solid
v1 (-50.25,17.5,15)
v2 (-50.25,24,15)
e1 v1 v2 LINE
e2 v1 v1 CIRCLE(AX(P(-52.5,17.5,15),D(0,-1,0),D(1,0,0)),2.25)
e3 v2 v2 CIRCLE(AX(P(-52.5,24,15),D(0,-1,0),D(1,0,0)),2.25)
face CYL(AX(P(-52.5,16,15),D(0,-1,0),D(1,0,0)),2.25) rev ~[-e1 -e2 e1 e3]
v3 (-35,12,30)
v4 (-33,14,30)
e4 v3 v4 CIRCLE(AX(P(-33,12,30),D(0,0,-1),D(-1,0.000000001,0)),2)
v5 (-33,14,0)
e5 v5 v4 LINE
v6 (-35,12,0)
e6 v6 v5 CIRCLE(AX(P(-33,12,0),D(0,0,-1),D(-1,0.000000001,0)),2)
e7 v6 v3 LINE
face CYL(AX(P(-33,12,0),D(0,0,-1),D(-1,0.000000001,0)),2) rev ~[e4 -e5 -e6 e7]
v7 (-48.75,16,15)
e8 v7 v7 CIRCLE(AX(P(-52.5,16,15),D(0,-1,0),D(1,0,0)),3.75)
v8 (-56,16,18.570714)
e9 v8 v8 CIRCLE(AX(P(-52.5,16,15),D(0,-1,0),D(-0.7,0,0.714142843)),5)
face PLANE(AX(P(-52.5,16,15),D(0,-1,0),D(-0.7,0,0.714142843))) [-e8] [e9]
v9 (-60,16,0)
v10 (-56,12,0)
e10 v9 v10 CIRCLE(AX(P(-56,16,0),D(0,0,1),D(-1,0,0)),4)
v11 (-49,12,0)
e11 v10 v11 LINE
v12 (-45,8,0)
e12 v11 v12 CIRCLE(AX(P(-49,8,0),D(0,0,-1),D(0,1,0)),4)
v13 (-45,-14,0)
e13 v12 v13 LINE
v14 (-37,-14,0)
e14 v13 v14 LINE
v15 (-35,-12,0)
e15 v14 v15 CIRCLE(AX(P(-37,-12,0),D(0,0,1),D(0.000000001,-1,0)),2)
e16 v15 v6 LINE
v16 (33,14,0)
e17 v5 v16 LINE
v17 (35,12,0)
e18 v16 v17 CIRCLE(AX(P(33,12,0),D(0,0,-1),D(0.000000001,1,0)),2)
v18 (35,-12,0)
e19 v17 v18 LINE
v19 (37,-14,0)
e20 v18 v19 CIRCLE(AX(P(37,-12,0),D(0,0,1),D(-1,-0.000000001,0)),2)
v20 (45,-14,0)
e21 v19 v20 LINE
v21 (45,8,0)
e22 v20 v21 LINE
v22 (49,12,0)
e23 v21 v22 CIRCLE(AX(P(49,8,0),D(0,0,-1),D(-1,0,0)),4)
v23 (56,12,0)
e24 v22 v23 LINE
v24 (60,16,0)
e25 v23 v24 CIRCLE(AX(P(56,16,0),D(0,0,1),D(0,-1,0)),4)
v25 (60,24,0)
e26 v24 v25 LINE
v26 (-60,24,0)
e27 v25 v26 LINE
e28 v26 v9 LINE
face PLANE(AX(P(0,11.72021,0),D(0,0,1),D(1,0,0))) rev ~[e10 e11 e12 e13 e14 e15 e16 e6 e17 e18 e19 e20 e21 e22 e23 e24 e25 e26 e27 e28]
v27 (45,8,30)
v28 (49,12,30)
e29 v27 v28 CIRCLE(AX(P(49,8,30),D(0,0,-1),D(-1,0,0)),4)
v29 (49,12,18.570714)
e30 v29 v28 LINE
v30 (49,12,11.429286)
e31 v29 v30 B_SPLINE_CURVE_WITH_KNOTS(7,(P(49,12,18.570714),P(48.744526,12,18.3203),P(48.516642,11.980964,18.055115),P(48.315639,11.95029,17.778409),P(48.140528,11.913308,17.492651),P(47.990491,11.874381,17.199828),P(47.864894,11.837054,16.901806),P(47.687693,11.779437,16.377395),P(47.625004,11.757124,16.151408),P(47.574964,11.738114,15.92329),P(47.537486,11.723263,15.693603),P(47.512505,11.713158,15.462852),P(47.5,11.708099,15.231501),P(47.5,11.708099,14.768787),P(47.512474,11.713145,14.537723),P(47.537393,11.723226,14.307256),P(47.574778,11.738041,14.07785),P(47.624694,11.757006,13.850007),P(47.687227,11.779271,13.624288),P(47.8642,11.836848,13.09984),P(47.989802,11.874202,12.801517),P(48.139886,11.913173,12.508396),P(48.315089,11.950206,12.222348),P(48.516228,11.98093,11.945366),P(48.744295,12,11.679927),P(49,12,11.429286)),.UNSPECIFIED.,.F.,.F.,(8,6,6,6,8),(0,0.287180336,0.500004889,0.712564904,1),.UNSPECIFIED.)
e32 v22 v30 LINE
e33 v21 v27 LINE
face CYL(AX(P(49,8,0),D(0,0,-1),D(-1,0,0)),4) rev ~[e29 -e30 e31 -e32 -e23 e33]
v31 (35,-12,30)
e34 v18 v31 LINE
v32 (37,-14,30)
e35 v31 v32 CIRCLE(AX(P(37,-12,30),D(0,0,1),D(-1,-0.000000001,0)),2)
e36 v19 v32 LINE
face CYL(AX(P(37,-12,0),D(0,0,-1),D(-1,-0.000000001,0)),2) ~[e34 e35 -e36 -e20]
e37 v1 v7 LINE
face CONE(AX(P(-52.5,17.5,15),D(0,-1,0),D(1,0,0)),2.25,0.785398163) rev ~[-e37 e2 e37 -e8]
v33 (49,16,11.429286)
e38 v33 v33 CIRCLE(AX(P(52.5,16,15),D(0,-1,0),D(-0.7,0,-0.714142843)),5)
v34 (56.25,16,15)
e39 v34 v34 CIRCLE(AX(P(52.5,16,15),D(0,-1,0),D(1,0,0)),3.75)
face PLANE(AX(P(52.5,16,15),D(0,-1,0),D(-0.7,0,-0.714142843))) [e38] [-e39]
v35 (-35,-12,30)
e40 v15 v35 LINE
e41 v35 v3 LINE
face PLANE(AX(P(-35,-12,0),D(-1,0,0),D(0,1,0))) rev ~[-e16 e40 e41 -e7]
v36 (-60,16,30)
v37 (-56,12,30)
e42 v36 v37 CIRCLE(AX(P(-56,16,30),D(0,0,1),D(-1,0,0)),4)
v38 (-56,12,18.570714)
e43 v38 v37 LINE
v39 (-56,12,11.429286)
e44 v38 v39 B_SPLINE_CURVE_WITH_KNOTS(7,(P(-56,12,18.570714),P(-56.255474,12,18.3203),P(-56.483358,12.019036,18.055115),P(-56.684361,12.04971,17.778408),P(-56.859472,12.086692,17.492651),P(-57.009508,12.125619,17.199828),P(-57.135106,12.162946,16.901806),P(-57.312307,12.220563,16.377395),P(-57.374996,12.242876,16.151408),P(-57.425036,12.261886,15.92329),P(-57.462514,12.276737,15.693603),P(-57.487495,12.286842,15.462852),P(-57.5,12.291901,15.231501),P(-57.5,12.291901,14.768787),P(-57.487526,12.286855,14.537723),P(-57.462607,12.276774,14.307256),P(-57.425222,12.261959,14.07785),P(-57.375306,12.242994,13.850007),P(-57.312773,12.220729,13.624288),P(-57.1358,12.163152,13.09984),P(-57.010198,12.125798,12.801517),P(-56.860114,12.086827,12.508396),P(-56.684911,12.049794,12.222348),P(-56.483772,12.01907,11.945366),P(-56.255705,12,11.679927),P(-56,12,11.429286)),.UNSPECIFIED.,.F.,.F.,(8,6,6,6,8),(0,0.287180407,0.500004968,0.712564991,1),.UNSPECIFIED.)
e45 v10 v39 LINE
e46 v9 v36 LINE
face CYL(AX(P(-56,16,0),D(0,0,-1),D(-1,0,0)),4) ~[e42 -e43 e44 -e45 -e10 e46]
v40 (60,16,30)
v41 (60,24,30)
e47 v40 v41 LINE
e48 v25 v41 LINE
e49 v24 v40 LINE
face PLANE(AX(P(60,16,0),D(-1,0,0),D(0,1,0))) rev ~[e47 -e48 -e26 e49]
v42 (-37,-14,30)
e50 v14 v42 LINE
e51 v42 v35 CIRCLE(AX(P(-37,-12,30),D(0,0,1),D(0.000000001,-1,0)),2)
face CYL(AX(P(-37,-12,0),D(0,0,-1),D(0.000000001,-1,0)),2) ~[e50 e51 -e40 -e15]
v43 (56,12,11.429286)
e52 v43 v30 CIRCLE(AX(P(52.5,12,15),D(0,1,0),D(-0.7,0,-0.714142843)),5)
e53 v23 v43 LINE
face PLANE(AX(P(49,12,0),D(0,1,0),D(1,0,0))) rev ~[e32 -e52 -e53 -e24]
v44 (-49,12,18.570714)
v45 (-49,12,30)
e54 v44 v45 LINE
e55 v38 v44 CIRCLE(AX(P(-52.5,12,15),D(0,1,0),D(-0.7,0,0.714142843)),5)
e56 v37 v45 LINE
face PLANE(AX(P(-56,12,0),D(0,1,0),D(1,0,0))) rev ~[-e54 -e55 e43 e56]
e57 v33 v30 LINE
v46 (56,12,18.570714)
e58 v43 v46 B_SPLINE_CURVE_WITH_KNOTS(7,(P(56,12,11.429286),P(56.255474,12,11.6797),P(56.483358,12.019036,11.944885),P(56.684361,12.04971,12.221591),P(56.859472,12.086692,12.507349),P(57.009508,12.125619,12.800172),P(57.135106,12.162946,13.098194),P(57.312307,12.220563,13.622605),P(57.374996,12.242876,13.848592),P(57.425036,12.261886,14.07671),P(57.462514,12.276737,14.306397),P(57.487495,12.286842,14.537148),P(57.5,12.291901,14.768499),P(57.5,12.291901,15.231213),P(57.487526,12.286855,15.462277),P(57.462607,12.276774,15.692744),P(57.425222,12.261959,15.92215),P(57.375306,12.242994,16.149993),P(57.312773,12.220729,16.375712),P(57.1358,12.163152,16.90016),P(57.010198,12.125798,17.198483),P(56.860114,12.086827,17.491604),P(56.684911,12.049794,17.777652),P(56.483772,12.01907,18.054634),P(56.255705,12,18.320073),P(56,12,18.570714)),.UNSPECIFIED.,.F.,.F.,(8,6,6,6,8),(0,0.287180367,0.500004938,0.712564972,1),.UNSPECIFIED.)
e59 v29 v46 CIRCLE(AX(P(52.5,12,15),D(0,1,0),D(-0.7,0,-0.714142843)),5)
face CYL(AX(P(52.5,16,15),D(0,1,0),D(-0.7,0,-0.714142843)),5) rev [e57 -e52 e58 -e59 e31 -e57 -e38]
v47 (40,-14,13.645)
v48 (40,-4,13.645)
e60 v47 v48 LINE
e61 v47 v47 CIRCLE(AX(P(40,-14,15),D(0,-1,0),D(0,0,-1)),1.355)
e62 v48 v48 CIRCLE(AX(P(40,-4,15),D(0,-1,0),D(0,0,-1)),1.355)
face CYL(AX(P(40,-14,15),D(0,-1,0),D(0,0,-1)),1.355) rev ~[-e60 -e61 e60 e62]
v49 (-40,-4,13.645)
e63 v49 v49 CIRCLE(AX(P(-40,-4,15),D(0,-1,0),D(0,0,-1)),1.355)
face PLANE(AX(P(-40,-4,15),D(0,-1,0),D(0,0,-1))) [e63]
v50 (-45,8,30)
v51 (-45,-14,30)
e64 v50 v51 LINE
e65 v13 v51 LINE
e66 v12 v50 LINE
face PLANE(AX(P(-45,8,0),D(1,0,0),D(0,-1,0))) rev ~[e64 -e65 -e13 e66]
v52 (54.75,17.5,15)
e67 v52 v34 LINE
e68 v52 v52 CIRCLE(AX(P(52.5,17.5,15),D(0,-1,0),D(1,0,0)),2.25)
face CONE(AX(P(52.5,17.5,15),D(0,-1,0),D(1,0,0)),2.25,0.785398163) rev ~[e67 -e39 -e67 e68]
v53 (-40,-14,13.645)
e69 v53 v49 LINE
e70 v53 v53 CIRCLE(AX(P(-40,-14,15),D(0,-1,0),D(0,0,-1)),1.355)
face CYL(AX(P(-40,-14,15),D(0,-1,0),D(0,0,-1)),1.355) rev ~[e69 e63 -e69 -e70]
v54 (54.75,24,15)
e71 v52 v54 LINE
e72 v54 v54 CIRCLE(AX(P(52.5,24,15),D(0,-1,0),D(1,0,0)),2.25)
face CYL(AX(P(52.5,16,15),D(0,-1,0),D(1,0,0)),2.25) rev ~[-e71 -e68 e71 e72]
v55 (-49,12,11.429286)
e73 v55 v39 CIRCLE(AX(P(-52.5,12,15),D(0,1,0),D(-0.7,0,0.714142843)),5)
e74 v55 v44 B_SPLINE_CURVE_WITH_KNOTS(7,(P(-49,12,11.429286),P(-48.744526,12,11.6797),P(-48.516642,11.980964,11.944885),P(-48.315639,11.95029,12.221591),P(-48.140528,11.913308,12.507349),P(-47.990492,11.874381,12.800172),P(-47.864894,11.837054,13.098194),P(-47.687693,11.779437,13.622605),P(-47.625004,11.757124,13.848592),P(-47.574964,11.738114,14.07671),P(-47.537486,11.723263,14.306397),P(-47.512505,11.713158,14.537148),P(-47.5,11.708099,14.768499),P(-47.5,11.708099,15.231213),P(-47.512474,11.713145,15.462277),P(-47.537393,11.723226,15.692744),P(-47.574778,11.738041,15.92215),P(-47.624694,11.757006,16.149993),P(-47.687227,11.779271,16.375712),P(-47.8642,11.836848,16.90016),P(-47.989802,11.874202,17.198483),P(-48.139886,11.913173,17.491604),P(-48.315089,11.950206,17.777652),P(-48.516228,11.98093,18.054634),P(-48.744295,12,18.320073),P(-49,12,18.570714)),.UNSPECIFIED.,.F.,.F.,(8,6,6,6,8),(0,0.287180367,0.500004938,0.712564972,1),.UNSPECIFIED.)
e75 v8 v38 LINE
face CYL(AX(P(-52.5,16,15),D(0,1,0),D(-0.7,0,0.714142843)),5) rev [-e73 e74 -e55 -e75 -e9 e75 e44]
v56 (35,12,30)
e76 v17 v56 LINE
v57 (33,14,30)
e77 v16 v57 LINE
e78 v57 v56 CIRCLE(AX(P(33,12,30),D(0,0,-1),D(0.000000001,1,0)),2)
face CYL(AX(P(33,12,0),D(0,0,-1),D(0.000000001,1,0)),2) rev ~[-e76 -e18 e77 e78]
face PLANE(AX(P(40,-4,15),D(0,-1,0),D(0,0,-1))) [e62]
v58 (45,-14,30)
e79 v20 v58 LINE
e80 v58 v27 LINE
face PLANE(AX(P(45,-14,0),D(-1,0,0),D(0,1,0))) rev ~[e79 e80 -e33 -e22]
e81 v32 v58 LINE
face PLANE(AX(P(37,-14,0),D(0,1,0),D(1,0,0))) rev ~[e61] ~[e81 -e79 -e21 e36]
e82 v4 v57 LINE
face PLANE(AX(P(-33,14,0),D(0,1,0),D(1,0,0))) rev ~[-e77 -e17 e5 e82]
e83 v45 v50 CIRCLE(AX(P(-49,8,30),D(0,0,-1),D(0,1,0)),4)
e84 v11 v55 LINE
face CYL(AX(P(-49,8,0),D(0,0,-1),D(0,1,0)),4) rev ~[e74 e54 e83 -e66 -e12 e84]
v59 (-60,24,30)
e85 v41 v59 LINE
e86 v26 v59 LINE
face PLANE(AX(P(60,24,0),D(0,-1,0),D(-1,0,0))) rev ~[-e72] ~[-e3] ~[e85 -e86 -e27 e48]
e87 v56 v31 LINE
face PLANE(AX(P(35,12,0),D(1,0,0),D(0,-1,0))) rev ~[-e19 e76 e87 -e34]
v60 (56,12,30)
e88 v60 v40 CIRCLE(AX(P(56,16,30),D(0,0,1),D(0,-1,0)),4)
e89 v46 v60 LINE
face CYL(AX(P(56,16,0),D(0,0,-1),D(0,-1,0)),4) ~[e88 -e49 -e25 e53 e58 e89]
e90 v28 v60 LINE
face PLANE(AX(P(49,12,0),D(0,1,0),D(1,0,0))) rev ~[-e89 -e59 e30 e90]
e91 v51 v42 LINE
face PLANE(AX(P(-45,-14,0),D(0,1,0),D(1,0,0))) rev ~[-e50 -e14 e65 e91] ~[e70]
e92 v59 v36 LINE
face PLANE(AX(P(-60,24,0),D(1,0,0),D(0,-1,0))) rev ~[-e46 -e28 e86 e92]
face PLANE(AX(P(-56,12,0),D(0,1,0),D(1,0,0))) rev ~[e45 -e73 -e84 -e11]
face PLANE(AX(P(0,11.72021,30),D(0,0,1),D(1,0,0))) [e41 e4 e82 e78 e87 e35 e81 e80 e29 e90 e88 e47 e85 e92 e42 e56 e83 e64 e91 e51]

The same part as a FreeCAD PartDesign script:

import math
import FreeCAD as App
import Part
import Sketcher


def edges_at(feature, points):
    """Names of the edges that pass closest to the given points."""
    edges = feature.Shape.Edges
    near = lambda p: min(range(len(edges)), key=lambda i: edges[i].distToShape(Part.Vertex(*p))[0])
    return sorted({f"Edge{near(p) + 1}" for p in points})

doc = App.newDocument("Part")
body = doc.addObject("PartDesign::Body", "Body")

# Sketch on XY plane
sketch1 = body.newObject("Sketcher::SketchObject", "Sketch")
sketch1.AttachmentSupport = (doc.getObject("XY_Plane"), [""])
sketch1.MapMode = "FlatFace"
sketch1.addGeometry(Part.LineSegment(App.Vector(-35, -12, 0), App.Vector(-35, 12, 0)), False)
sketch1.addGeometry(Part.ArcOfCircle(Part.Circle(App.Vector(-33, 12, 0), App.Vector(0, 0, 1), 2), math.radians(90), math.radians(180)), False)
sketch1.addGeometry(Part.LineSegment(App.Vector(-33, 14, 0), App.Vector(33, 14, 0)), False)
sketch1.addGeometry(Part.ArcOfCircle(Part.Circle(App.Vector(33, 12, 0), App.Vector(0, 0, 1), 2), math.radians(0), math.radians(90)), False)
sketch1.addGeometry(Part.LineSegment(App.Vector(35, 12, 0), App.Vector(35, -12, 0)), False)
sketch1.addGeometry(Part.ArcOfCircle(Part.Circle(App.Vector(37, -12, 0), App.Vector(0, 0, 1), 2), math.radians(-180), math.radians(-90)), False)
sketch1.addGeometry(Part.LineSegment(App.Vector(37, -14, 0), App.Vector(45, -14, 0)), False)
sketch1.addGeometry(Part.LineSegment(App.Vector(45, -14, 0), App.Vector(45, 8, 0)), False)
sketch1.addGeometry(Part.ArcOfCircle(Part.Circle(App.Vector(49, 8, 0), App.Vector(0, 0, 1), 4), math.radians(90), math.radians(180)), False)
sketch1.addGeometry(Part.LineSegment(App.Vector(49, 12, 0), App.Vector(56, 12, 0)), False)
sketch1.addGeometry(Part.ArcOfCircle(Part.Circle(App.Vector(56, 16, 0), App.Vector(0, 0, 1), 4), math.radians(-90), math.radians(0)), False)
sketch1.addGeometry(Part.LineSegment(App.Vector(60, 16, 0), App.Vector(60, 24, 0)), False)
sketch1.addGeometry(Part.LineSegment(App.Vector(60, 24, 0), App.Vector(-60, 24, 0)), False)
sketch1.addGeometry(Part.LineSegment(App.Vector(-60, 24, 0), App.Vector(-60, 16, 0)), False)
sketch1.addGeometry(Part.ArcOfCircle(Part.Circle(App.Vector(-56, 16, 0), App.Vector(0, 0, 1), 4), math.radians(180), math.radians(270)), False)
sketch1.addGeometry(Part.LineSegment(App.Vector(-56, 12, 0), App.Vector(-49, 12, 0)), False)
sketch1.addGeometry(Part.ArcOfCircle(Part.Circle(App.Vector(-49, 8, 0), App.Vector(0, 0, 1), 4), math.radians(0), math.radians(90)), False)
sketch1.addGeometry(Part.LineSegment(App.Vector(-45, 8, 0), App.Vector(-45, -14, 0)), False)
sketch1.addGeometry(Part.LineSegment(App.Vector(-45, -14, 0), App.Vector(-37, -14, 0)), False)
sketch1.addGeometry(Part.ArcOfCircle(Part.Circle(App.Vector(-37, -12, 0), App.Vector(0, 0, 1), 2), math.radians(-90), math.radians(0)), False)
sketch1.addConstraint(Sketcher.Constraint("Tangent", 0, 2, 1, 2))
sketch1.addConstraint(Sketcher.Constraint("Tangent", 1, 1, 2, 1))
sketch1.addConstraint(Sketcher.Constraint("Tangent", 2, 2, 3, 2))
sketch1.addConstraint(Sketcher.Constraint("Tangent", 3, 1, 4, 1))
sketch1.addConstraint(Sketcher.Constraint("Tangent", 4, 2, 5, 1))
sketch1.addConstraint(Sketcher.Constraint("Tangent", 5, 2, 6, 1))
sketch1.addConstraint(Sketcher.Constraint("Coincident", 6, 2, 7, 1))
sketch1.addConstraint(Sketcher.Constraint("Tangent", 7, 2, 8, 2))
sketch1.addConstraint(Sketcher.Constraint("Tangent", 8, 1, 9, 1))
sketch1.addConstraint(Sketcher.Constraint("Tangent", 9, 2, 10, 1))
sketch1.addConstraint(Sketcher.Constraint("Tangent", 10, 2, 11, 1))
sketch1.addConstraint(Sketcher.Constraint("Coincident", 11, 2, 12, 1))
sketch1.addConstraint(Sketcher.Constraint("Coincident", 12, 2, 13, 1))
sketch1.addConstraint(Sketcher.Constraint("Tangent", 13, 2, 14, 1))
sketch1.addConstraint(Sketcher.Constraint("Tangent", 14, 2, 15, 1))
sketch1.addConstraint(Sketcher.Constraint("Tangent", 15, 2, 16, 2))
sketch1.addConstraint(Sketcher.Constraint("Tangent", 16, 1, 17, 1))
sketch1.addConstraint(Sketcher.Constraint("Coincident", 17, 2, 18, 1))
sketch1.addConstraint(Sketcher.Constraint("Tangent", 18, 2, 19, 1))
sketch1.addConstraint(Sketcher.Constraint("Tangent", 19, 2, 0, 1))
sketch1.addConstraint(Sketcher.Constraint("Vertical", 0))
sketch1.addConstraint(Sketcher.Constraint("Horizontal", 2))
sketch1.addConstraint(Sketcher.Constraint("Vertical", 4))
sketch1.addConstraint(Sketcher.Constraint("Horizontal", 6))
sketch1.addConstraint(Sketcher.Constraint("Vertical", 7))
sketch1.addConstraint(Sketcher.Constraint("Horizontal", 9))
sketch1.addConstraint(Sketcher.Constraint("Vertical", 11))
sketch1.addConstraint(Sketcher.Constraint("Horizontal", 12))
sketch1.addConstraint(Sketcher.Constraint("Vertical", 13))
sketch1.addConstraint(Sketcher.Constraint("Horizontal", 15))
sketch1.addConstraint(Sketcher.Constraint("Vertical", 17))
sketch1.addConstraint(Sketcher.Constraint("Horizontal", 18))
sketch1.addConstraint(Sketcher.Constraint("Equal", 1, 3))
sketch1.addConstraint(Sketcher.Constraint("Equal", 3, 5))
sketch1.addConstraint(Sketcher.Constraint("Equal", 8, 10))
sketch1.addConstraint(Sketcher.Constraint("Equal", 10, 14))
sketch1.addConstraint(Sketcher.Constraint("Equal", 14, 16))
sketch1.addConstraint(Sketcher.Constraint("Equal", 5, 19))
sketch1.addConstraint(Sketcher.Constraint("Symmetric", 0, 2, 4, 2, -1, 1))
sketch1.addConstraint(Sketcher.Constraint("Symmetric", 10, 3, 14, 3, -2))
sketch1.addConstraint(Sketcher.Constraint("Symmetric", 6, 2, 17, 2, -2))
sketch1.addConstraint(Sketcher.Constraint("Horizontal", 3, 1, 8, 1))
sketch1.addConstraint(Sketcher.Constraint("Equal", 18, 11))
sketch1.addConstraint(Sketcher.Constraint("Radius", 1, 2.0))
sketch1.addConstraint(Sketcher.Constraint("Radius", 8, 4.0))
sketch1.addConstraint(Sketcher.Constraint("DistanceX", 2, 1, 2, 2, 66.0))
sketch1.addConstraint(Sketcher.Constraint("DistanceX", 6, 1, 6, 2, 8.0))
sketch1.addConstraint(Sketcher.Constraint("DistanceX", 9, 1, 9, 2, 7.0))
sketch1.addConstraint(Sketcher.Constraint("DistanceY", 0, 1, 0, 2, 24.0))
pad1 = body.newObject("PartDesign::Pad", "Pad")
pad1.Profile = sketch1
pad1.Length = 30

# Sketch on XZ plane
sketch2 = body.newObject("Sketcher::SketchObject", "Sketch001")
sketch2.AttachmentSupport = (doc.getObject("XZ_Plane"), [""])
sketch2.MapMode = "FlatFace"
sketch2.AttachmentOffset = App.Placement(App.Vector(0, 0, -12), App.Rotation())
sketch2.addGeometry(Part.Circle(App.Vector(-52, 15, 0), App.Vector(0, 0, 1), 5), False)
sketch2.addGeometry(Part.Circle(App.Vector(52, 15, 0), App.Vector(0, 0, 1), 5), False)
sketch2.addConstraint(Sketcher.Constraint("Equal", 0, 1))
sketch2.addConstraint(Sketcher.Constraint("Symmetric", 0, 3, 1, 3, -2))
sketch2.addConstraint(Sketcher.Constraint("Diameter", 0, 10.0))
sketch2.addConstraint(Sketcher.Constraint("DistanceY", -1, 1, 0, 3, 15.0))
sketch2.addConstraint(Sketcher.Constraint("DistanceX", 0, 3, 1, 3, 105.0))
pocket1 = body.newObject("PartDesign::Pocket", "Pocket")
pocket1.Profile = sketch2
pocket1.Type = "TwoLengths"
pocket1.Length = 72.944423
pocket1.Length2 = 4
pocket1.Reversed = True

# Sketch on XZ plane
sketch3 = body.newObject("Sketcher::SketchObject", "Sketch002")
sketch3.AttachmentSupport = (doc.getObject("XZ_Plane"), [""])
sketch3.MapMode = "FlatFace"
sketch3.AttachmentOffset = App.Placement(App.Vector(0, 0, -16), App.Rotation())
sketch3.addGeometry(Part.Circle(App.Vector(-52.5, 15, 0), App.Vector(0, 0, 1), 2.2), False)
sketch3.addGeometry(Part.Circle(App.Vector(52.5, 15, 0), App.Vector(0, 0, 1), 2.2), False)
sketch3.addConstraint(Sketcher.Constraint("Equal", 0, 1))
sketch3.addConstraint(Sketcher.Constraint("Symmetric", 0, 3, 1, 3, -2))
sketch3.addConstraint(Sketcher.Constraint("Diameter", 0, 4.5))
sketch3.addConstraint(Sketcher.Constraint("DistanceY", -1, 1, 0, 3, 15.0))
sketch3.addConstraint(Sketcher.Constraint("DistanceX", 0, 3, 1, 3, 105.0))
pocket2 = body.newObject("PartDesign::Pocket", "Pocket001")
pocket2.Profile = sketch3
pocket2.Type = "ThroughAll"
doc.recompute()

chamfer = body.newObject("PartDesign::Chamfer", "Chamfer")
chamfer.Base = (pocket2, edges_at(pocket2, [(-54.75, 16, 15), (50.25, 16, 15)]))
chamfer.Size = 1.5

# Sketch on XZ plane
sketch4 = body.newObject("Sketcher::SketchObject", "Sketch003")
sketch4.AttachmentSupport = (doc.getObject("XZ_Plane"), [""])
sketch4.MapMode = "FlatFace"
sketch4.AttachmentOffset = App.Placement(App.Vector(0, 0, 14), App.Rotation())
sketch4.addGeometry(Part.Circle(App.Vector(-40, 15, 0), App.Vector(0, 0, 1), 1.4), False)
sketch4.addGeometry(Part.Circle(App.Vector(40, 15, 0), App.Vector(0, 0, 1), 1.4), False)
sketch4.addConstraint(Sketcher.Constraint("Equal", 0, 1))
sketch4.addConstraint(Sketcher.Constraint("Symmetric", 0, 3, 1, 3, -2))
sketch4.addConstraint(Sketcher.Constraint("Diameter", 0, 2.71))
sketch4.addConstraint(Sketcher.Constraint("DistanceX", 0, 3, -1, 1, 40.0))
sketch4.addConstraint(Sketcher.Constraint("DistanceY", -1, 1, 0, 3, 15.0))
pocket3 = body.newObject("PartDesign::Pocket", "Pocket002")
pocket3.Profile = sketch4
pocket3.Length = 10

doc.recompute()
